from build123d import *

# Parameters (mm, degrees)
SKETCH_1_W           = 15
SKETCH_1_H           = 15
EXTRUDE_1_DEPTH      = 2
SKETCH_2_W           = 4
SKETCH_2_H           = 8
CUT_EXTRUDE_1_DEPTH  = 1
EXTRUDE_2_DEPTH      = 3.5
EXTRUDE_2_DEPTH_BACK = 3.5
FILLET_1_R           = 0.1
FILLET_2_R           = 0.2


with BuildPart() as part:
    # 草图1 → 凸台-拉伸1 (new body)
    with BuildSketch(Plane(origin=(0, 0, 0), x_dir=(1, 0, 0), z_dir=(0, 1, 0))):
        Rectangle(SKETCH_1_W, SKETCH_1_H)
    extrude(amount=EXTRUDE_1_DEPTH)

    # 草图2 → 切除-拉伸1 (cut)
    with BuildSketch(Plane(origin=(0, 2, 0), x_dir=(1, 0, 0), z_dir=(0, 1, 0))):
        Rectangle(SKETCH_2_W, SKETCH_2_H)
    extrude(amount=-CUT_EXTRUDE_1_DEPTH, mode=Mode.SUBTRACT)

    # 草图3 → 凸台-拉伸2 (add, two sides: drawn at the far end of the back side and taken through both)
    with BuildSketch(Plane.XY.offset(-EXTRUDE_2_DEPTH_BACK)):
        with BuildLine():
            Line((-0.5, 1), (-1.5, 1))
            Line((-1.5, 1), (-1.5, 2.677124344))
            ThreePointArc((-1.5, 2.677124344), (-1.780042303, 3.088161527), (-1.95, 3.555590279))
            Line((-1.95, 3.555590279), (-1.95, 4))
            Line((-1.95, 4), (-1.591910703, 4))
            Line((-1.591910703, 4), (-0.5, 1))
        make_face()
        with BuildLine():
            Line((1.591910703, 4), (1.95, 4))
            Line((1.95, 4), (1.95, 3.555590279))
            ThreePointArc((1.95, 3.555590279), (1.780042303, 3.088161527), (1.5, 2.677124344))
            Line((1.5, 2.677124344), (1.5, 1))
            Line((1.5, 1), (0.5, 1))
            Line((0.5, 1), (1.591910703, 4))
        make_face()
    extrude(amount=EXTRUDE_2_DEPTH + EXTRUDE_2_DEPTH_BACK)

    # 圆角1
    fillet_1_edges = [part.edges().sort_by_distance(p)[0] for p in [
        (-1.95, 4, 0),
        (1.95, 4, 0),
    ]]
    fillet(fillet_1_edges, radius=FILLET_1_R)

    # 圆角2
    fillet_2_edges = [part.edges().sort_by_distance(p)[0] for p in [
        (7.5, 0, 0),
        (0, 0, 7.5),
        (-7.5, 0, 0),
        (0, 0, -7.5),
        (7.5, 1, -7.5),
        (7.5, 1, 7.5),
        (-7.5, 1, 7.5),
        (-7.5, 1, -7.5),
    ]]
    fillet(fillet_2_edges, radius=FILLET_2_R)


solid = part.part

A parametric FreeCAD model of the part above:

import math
import FreeCAD as App
import Part
import Sketcher
from FreeCAD import Vector
Q = App.Units.Quantity


def edges_at(feature, points):
    """Names of the edges that pass closest to the given points."""
    edges = feature.Shape.Edges
    near = lambda p: min(range(len(edges)), key=lambda i: edges[i].distToShape(Part.Vertex(*p))[0])
    return sorted({f"Edge{near(p) + 1}" for p in points})

doc = App.newDocument("Part")
params = doc.addObject("Spreadsheet::Sheet", "Params")
for row, (alias, value) in enumerate([
    ("sketch1_width", "15 mm"),
    ("pad1_length", "2 mm"),
    ("sketch2_width", "4 mm"),
    ("sketch2_height", "8 mm"),
    ("pocket1_length", "1 mm"),
    ("sketch3_radius", "2 mm"),
    ("sketch3_width", "1 mm"),
    ("pad2_length", "3.5 mm"),
    ("pad2_length2", "3.5 mm"),
    ("fillet_radius", "0.1 mm"),
    ("fillet2_radius", "0.2 mm"),
], start=1):
    params.set(f"A{row}", alias)
    params.set(f"B{row}", "=" + value)
    params.setAlias(f"B{row}", alias)

body = doc.addObject("PartDesign::Body", "Body")

sketch1 = body.newObject("Sketcher::SketchObject", "Sketch")
sketch1.AttachmentSupport = (doc.getObject("XZ_Plane"), [""])
sketch1.MapMode = "FlatFace"
sketch1.addGeometry(Part.LineSegment(Vector(-7.5, -7.5, 0), Vector(-7.5, 7.5, 0)), False)
sketch1.addGeometry(Part.LineSegment(Vector(-7.5, 7.5, 0), Vector(7.5, 7.5, 0)), False)
sketch1.addGeometry(Part.LineSegment(Vector(7.5, 7.5, 0), Vector(7.5, -7.5, 0)), False)
sketch1.addGeometry(Part.LineSegment(Vector(7.5, -7.5, 0), Vector(-7.5, -7.5, 0)), False)
sketch1.addConstraint(Sketcher.Constraint("Coincident", 0, 2, 1, 1))
sketch1.addConstraint(Sketcher.Constraint("Coincident", 1, 2, 2, 1))
sketch1.addConstraint(Sketcher.Constraint("Coincident", 2, 2, 3, 1))
sketch1.addConstraint(Sketcher.Constraint("Coincident", 3, 2, 0, 1))
sketch1.addConstraint(Sketcher.Constraint("Vertical", 0))
sketch1.addConstraint(Sketcher.Constraint("Horizontal", 1))
sketch1.addConstraint(Sketcher.Constraint("Vertical", 2))
sketch1.addConstraint(Sketcher.Constraint("Horizontal", 3))
sketch1.addConstraint(Sketcher.Constraint("Symmetric", 0, 2, 2, 2, -1, 1))
sketch1.addConstraint(Sketcher.Constraint("Equal", 3, 0))
sketch1.addConstraint(Sketcher.Constraint("DistanceX", 1, 1, 1, 2, 15.0))
sketch1.setExpression("Constraints[10]", "Params.sketch1_width")
pad1 = body.newObject("PartDesign::Pad", "Pad")
pad1.Profile = sketch1
pad1.setExpression("Length", "Params.pad1_length")
pad1.Reversed = True

sketch2 = body.newObject("Sketcher::SketchObject", "Sketch001")
sketch2.AttachmentSupport = (doc.getObject("XZ_Plane"), [""])
sketch2.MapMode = "FlatFace"
sketch2.AttachmentOffset = App.Placement(Vector(0, 0, -2), App.Rotation())
sketch2.addGeometry(Part.LineSegment(Vector(-2, -4, 0), Vector(-2, 4, 0)), False)
sketch2.addGeometry(Part.LineSegment(Vector(-2, 4, 0), Vector(2, 4, 0)), False)
sketch2.addGeometry(Part.LineSegment(Vector(2, 4, 0), Vector(2, -4, 0)), False)
sketch2.addGeometry(Part.LineSegment(Vector(2, -4, 0), Vector(-2, -4, 0)), False)
sketch2.addConstraint(Sketcher.Constraint("Coincident", 0, 2, 1, 1))
sketch2.addConstraint(Sketcher.Constraint("Coincident", 1, 2, 2, 1))
sketch2.addConstraint(Sketcher.Constraint("Coincident", 2, 2, 3, 1))
sketch2.addConstraint(Sketcher.Constraint("Coincident", 3, 2, 0, 1))
sketch2.addConstraint(Sketcher.Constraint("Vertical", 0))
sketch2.addConstraint(Sketcher.Constraint("Horizontal", 1))
sketch2.addConstraint(Sketcher.Constraint("Vertical", 2))
sketch2.addConstraint(Sketcher.Constraint("Horizontal", 3))
sketch2.addConstraint(Sketcher.Constraint("Symmetric", 0, 2, 2, 2, -1, 1))
sketch2.addConstraint(Sketcher.Constraint("DistanceX", 1, 1, 1, 2, 4.0))
sketch2.addConstraint(Sketcher.Constraint("DistanceY", 0, 1, 0, 2, 8.0))
sketch2.setExpression("Constraints[9]", "Params.sketch2_width")
sketch2.setExpression("Constraints[10]", "Params.sketch2_height")
pocket1 = body.newObject("PartDesign::Pocket", "Pocket")
pocket1.Profile = sketch2
pocket1.setExpression("Length", "Params.pocket1_length")
pocket1.Reversed = True

sketch3 = body.newObject("Sketcher::SketchObject", "Sketch002")
sketch3.AttachmentSupport = (doc.getObject("XY_Plane"), [""])
sketch3.MapMode = "FlatFace"
sketch3.addGeometry(Part.LineSegment(Vector(-1.5, 1, 0), Vector(-0.5, 1, 0)), False)
sketch3.addGeometry(Part.LineSegment(Vector(-0.5, 1, 0), Vector(-1.591911, 4, 0)), False)
sketch3.addGeometry(Part.LineSegment(Vector(-1.591911, 4, 0), Vector(-1.95, 4, 0)), False)
sketch3.addGeometry(Part.LineSegment(Vector(-1.95, 4, 0), Vector(-1.95, 3.55559, 0)), False)
sketch3.addGeometry(Part.ArcOfCircle(Part.Circle(Vector(0, 4, 0), Vector(0, 0, 1), 2), math.radians(-167.161432), math.radians(-138.590378)), False)
sketch3.addGeometry(Part.LineSegment(Vector(-1.5, 2.677124, 0), Vector(-1.5, 1, 0)), False)
sketch3.addGeometry(Part.LineSegment(Vector(1.95, 4, 0), Vector(1.591911, 4, 0)), False)
sketch3.addGeometry(Part.LineSegment(Vector(1.591911, 4, 0), Vector(0.5, 1, 0)), False)
sketch3.addGeometry(Part.LineSegment(Vector(0.5, 1, 0), Vector(1.5, 1, 0)), False)
sketch3.addGeometry(Part.LineSegment(Vector(1.5, 1, 0), Vector(1.5, 2.677124, 0)), False)
sketch3.addGeometry(Part.ArcOfCircle(Part.Circle(Vector(0, 4, 0), Vector(0, 0, 1), 2), math.radians(-41.409622), math.radians(-12.838568)), False)
sketch3.addGeometry(Part.LineSegment(Vector(1.95, 3.55559, 0), Vector(1.95, 4, 0)), False)
sketch3.addConstraint(Sketcher.Constraint("Coincident", 0, 2, 1, 1))
sketch3.addConstraint(Sketcher.Constraint("Coincident", 1, 2, 2, 1))
sketch3.addConstraint(Sketcher.Constraint("Coincident", 2, 2, 3, 1))
sketch3.addConstraint(Sketcher.Constraint("Coincident", 3, 2, 4, 1))
sketch3.addConstraint(Sketcher.Constraint("Coincident", 4, 2, 5, 1))
sketch3.addConstraint(Sketcher.Constraint("Coincident", 5, 2, 0, 1))
sketch3.addConstraint(Sketcher.Constraint("Coincident", 6, 2, 7, 1))
sketch3.addConstraint(Sketcher.Constraint("Coincident", 7, 2, 8, 1))
sketch3.addConstraint(Sketcher.Constraint("Coincident", 8, 2, 9, 1))
sketch3.addConstraint(Sketcher.Constraint("Coincident", 9, 2, 10, 1))
sketch3.addConstraint(Sketcher.Constraint("Coincident", 10, 2, 11, 1))
sketch3.addConstraint(Sketcher.Constraint("Coincident", 11, 2, 6, 1))
sketch3.addConstraint(Sketcher.Constraint("Horizontal", 0))
sketch3.addConstraint(Sketcher.Constraint("Horizontal", 2))
sketch3.addConstraint(Sketcher.Constraint("Vertical", 3))
sketch3.addConstraint(Sketcher.Constraint("Vertical", 5))
sketch3.addConstraint(Sketcher.Constraint("Horizontal", 6))
sketch3.addConstraint(Sketcher.Constraint("Horizontal", 8))
sketch3.addConstraint(Sketcher.Constraint("Vertical", 9))
sketch3.addConstraint(Sketcher.Constraint("Vertical", 11))
sketch3.addConstraint(Sketcher.Constraint("Coincident", 10, 3, 4, 3))
sketch3.addConstraint(Sketcher.Constraint("Equal", 4, 10))
sketch3.addConstraint(Sketcher.Constraint("Symmetric", 1, 2, 6, 2, -2))
sketch3.addConstraint(Sketcher.Constraint("Symmetric", 0, 2, 7, 2, -2))
sketch3.addConstraint(Sketcher.Constraint("Symmetric", 4, 2, 9, 2, -2))
sketch3.addConstraint(Sketcher.Constraint("Horizontal", 10, 3, 1, 2))
sketch3.addConstraint(Sketcher.Constraint("Horizontal", 3, 2, 10, 2))
sketch3.addConstraint(Sketcher.Constraint("Radius", 4, 2.0))
sketch3.addConstraint(Sketcher.Constraint("DistanceX", 0, 1, 0, 2, 1.0))
sketch3.addConstraint(Sketcher.Constraint("Angle", 1, Q("110 deg")))
sketch3.addConstraint(Sketcher.Constraint("DistanceY", -1, 1, 4, 3, 4.0))
sketch3.addConstraint(Sketcher.Constraint("DistanceY", -1, 1, 0, 2, 1.0))
sketch3.addConstraint(Sketcher.Constraint("DistanceX", 0, 2, 7, 2, 1.0))
sketch3.addConstraint(Sketcher.Constraint("DistanceX", 2, 2, -1, 1, 1.95))
sketch3.setExpression("Constraints[27]", "Params.sketch3_radius")
sketch3.setExpression("Constraints[28]", "Params.sketch3_width")
pad2 = body.newObject("PartDesign::Pad", "Pad001")
pad2.Profile = sketch3
pad2.Type = "TwoLengths"
pad2.setExpression("Length", "Params.pad2_length")
pad2.setExpression("Length2", "Params.pad2_length2")
doc.recompute()

fillet = body.newObject("PartDesign::Fillet", "Fillet")
fillet.Base = (pad2, edges_at(pad2, [(-1.95, 4, 0), (1.95, 4, 0)]))
fillet.setExpression("Radius", "Params.fillet_radius")
doc.recompute()

fillet2 = body.newObject("PartDesign::Fillet", "Fillet001")
fillet2.Base = (fillet, edges_at(fillet, [
    (7.5, 0, 0),
    (0, 0, 7.5),
    (-7.5, 0, 0),
    (0, 0, -7.5),
    (7.5, 1, -7.5),
    (7.5, 1, 7.5),
    (-7.5, 1, 7.5),
    (-7.5, 1, -7.5),
]))
fillet2.setExpression("Radius", "Params.fillet2_radius")

doc.recompute()
